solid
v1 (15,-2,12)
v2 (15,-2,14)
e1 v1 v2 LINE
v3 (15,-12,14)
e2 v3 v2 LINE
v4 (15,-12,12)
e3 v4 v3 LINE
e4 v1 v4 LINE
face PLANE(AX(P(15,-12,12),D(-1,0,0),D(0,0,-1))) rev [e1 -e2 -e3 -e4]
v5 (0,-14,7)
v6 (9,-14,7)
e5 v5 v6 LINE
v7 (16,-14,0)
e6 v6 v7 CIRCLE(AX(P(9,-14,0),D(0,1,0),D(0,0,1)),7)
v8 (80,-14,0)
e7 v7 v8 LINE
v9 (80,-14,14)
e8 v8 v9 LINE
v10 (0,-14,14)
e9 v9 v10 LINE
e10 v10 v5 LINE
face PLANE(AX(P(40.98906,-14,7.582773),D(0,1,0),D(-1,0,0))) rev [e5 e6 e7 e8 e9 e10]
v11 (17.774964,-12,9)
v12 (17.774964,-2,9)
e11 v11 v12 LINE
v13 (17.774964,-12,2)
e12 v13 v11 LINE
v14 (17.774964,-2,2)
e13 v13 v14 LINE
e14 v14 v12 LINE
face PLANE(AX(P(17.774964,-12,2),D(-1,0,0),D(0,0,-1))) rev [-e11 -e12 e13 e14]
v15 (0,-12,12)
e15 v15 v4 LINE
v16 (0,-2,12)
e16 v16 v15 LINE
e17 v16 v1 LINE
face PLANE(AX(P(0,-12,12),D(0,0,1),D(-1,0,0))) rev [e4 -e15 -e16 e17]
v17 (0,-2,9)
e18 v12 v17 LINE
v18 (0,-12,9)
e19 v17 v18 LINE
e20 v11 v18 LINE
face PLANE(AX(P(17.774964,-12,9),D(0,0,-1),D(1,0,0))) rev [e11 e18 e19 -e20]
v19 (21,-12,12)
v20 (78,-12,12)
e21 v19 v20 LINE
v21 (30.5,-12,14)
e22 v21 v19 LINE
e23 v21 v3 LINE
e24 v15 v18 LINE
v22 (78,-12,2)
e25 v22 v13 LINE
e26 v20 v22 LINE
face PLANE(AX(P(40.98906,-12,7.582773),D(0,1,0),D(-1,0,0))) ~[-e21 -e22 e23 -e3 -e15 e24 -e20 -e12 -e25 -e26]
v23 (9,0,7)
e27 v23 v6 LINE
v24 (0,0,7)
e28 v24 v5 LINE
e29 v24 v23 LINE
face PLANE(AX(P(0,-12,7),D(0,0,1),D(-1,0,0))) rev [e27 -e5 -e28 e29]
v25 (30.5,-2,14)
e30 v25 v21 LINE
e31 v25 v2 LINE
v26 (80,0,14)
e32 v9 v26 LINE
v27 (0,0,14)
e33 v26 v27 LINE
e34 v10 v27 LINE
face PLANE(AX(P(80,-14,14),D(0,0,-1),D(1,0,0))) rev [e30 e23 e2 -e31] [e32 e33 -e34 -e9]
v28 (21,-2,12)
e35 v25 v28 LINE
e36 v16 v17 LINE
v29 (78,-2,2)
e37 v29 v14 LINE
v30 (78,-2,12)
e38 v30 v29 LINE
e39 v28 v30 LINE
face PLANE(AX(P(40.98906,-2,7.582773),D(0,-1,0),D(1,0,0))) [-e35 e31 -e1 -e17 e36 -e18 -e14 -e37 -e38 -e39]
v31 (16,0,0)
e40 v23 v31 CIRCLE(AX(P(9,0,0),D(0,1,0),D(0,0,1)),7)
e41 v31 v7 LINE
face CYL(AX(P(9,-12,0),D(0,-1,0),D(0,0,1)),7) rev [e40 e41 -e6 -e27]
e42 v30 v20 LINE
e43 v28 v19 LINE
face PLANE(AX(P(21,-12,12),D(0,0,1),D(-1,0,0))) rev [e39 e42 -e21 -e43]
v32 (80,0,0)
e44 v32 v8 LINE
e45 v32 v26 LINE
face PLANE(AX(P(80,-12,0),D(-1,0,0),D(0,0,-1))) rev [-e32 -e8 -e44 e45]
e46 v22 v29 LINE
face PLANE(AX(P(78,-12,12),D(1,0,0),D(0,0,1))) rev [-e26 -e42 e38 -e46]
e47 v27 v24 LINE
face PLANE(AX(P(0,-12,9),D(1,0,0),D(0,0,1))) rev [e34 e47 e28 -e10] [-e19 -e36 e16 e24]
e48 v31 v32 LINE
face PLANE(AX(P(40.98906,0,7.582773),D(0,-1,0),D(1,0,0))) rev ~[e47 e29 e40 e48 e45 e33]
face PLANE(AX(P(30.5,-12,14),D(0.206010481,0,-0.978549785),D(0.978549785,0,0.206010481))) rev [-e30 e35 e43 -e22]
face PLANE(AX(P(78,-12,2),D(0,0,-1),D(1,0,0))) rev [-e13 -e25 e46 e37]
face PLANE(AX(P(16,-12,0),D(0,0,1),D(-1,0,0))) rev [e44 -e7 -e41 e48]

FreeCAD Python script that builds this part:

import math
import FreeCAD as App
import Part
import Sketcher
from FreeCAD import Vector
Q = App.Units.Quantity

doc = App.newDocument("Part")
params = doc.addObject("Spreadsheet::Sheet", "Params")
for row, (alias, value) in enumerate([
    ("sketch1_radius", "7 mm"),
    ("sketch1_width", "64 mm"),
    ("sketch1_width2", "80 mm"),
    ("sketch1_height", "14 mm"),
    ("pad1_length", "2 mm"),
    ("sketch2_radius", "7 mm"),
    ("sketch2_width", "9 mm"),
    ("sketch2_width2", "64 mm"),
    ("sketch2_width3", "57 mm"),
    ("sketch2_width4", "15 mm"),
    ("pad2_length", "5 mm"),
], start=1):
    params.set(f"A{row}", alias)
    params.set(f"B{row}", "=" + value)
    params.setAlias(f"B{row}", alias)

body = doc.addObject("PartDesign::Body", "Body")

# Sketch on XZ plane
sketch1 = doc.addObject("Sketcher::SketchObject", "Sketch")
body.addObject(sketch1)
sketch1.AttachmentSupport = (doc.XZ_Plane, [""])
sketch1.MapMode = "FlatFace"
sketch1.addGeometry([
    Part.ArcOfCircle(Part.Circle(Vector(9, 0, 0), Vector(0, 0, 1), 7), math.radians(0), math.radians(90)),  # 0
    Part.LineSegment(Vector(16, 0, 0), Vector(80, 0, 0)),  # 1
    Part.LineSegment(Vector(80, 0, 0), Vector(80, 14, 0)),  # 2
    Part.LineSegment(Vector(80, 14, 0), Vector(0, 14, 0)),  # 3
    Part.LineSegment(Vector(0, 14, 0), Vector(0, 7, 0)),  # 4
    Part.LineSegment(Vector(0, 7, 0), Vector(9, 7, 0)),  # 5
], False)
sketch1.addConstraint([
    Sketcher.Constraint("Coincident", 0, 1, 1, 1),
    Sketcher.Constraint("Coincident", 1, 2, 2, 1),
    Sketcher.Constraint("Coincident", 2, 2, 3, 1),
    Sketcher.Constraint("Coincident", 3, 2, 4, 1),
    Sketcher.Constraint("Coincident", 4, 2, 5, 1),
    Sketcher.Constraint("Tangent", 5, 2, 0, 2),
    Sketcher.Constraint("Horizontal", 1),
    Sketcher.Constraint("Vertical", 2),
    Sketcher.Constraint("Horizontal", 3),
    Sketcher.Constraint("Vertical", 4),
    Sketcher.Constraint("Horizontal", 5),
    Sketcher.Constraint("PointOnObject", 0, 3, -1),
    Sketcher.Constraint("PointOnObject", 0, 1, -1),
    Sketcher.Constraint("PointOnObject", 3, 2, -2),
    Sketcher.Constraint("Radius", 0, Q("7 mm")),
    Sketcher.Constraint("DistanceX", 1, 1, 1, 2, Q("64 mm")),
    Sketcher.Constraint("DistanceX", 3, 2, 3, 1, Q("80 mm")),
    Sketcher.Constraint("DistanceY", 2, 1, 2, 2, Q("14 mm")),
])
sketch1.setExpression("Constraints[14]", "Params.sketch1_radius")
sketch1.setExpression("Constraints[15]", "Params.sketch1_width")
sketch1.setExpression("Constraints[16]", "Params.sketch1_width2")
sketch1.setExpression("Constraints[17]", "Params.sketch1_height")
pad1 = doc.addObject("PartDesign::Pad", "Pad")
body.addObject(pad1)
pad1.Profile = sketch1
pad1.setExpression("Length", "Params.pad1_length")

# Sketch on XZ plane
sketch2 = doc.addObject("Sketcher::SketchObject", "Sketch001")
body.addObject(sketch2)
sketch2.AttachmentSupport = (doc.XZ_Plane, [""])
sketch2.MapMode = "FlatFace"
sketch2.AttachmentOffset = App.Placement(Vector(0, 0, 2), App.Rotation())
sketch2.addGeometry([
    Part.LineSegment(Vector(17.8, 9, 0), Vector(0, 9, 0)),  # 0
    Part.LineSegment(Vector(0, 9, 0), Vector(0, 7, 0)),  # 1
    Part.LineSegment(Vector(0, 7, 0), Vector(9, 7, 0)),  # 2
    Part.ArcOfCircle(Part.Circle(Vector(9, 0, 0), Vector(0, 0, 1), 7), math.radians(0), math.radians(90)),  # 3
    Part.LineSegment(Vector(16, 0, 0), Vector(80, 0, 0)),  # 4
    Part.LineSegment(Vector(80, 0, 0), Vector(80, 14, 0)),  # 5
    Part.LineSegment(Vector(80, 14, 0), Vector(30.5, 14, 0)),  # 6
    Part.LineSegment(Vector(30.5, 14, 0), Vector(21, 12, 0)),  # 7
    Part.LineSegment(Vector(21, 12, 0), Vector(78, 12, 0)),  # 8
    Part.LineSegment(Vector(78, 12, 0), Vector(78, 2, 0)),  # 9
    Part.LineSegment(Vector(78, 2, 0), Vector(17.8, 2, 0)),  # 10
    Part.LineSegment(Vector(17.8, 2, 0), Vector(17.8, 9, 0)),  # 11
    Part.LineSegment(Vector(0, 14, 0), Vector(0, 12, 0)),  # 12
    Part.LineSegment(Vector(0, 12, 0), Vector(15, 12, 0)),  # 13
    Part.LineSegment(Vector(15, 12, 0), Vector(15, 14, 0)),  # 14
    Part.LineSegment(Vector(15, 14, 0), Vector(0, 14, 0)),  # 15
], False)
sketch2.addConstraint([
    Sketcher.Constraint("Coincident", 0, 2, 1, 1),
    Sketcher.Constraint("Coincident", 1, 2, 2, 1),
    Sketcher.Constraint("Tangent", 2, 2, 3, 2),
    Sketcher.Constraint("Coincident", 3, 1, 4, 1),
    Sketcher.Constraint("Coincident", 4, 2, 5, 1),
    Sketcher.Constraint("Coincident", 5, 2, 6, 1),
    Sketcher.Constraint("Coincident", 6, 2, 7, 1),
    Sketcher.Constraint("Coincident", 7, 2, 8, 1),
    Sketcher.Constraint("Coincident", 8, 2, 9, 1),
    Sketcher.Constraint("Coincident", 9, 2, 10, 1),
    Sketcher.Constraint("Coincident", 10, 2, 11, 1),
    Sketcher.Constraint("Coincident", 11, 2, 0, 1),
    Sketcher.Constraint("Coincident", 12, 2, 13, 1),
    Sketcher.Constraint("Coincident", 13, 2, 14, 1),
    Sketcher.Constraint("Coincident", 14, 2, 15, 1),
    Sketcher.Constraint("Coincident", 15, 2, 12, 1),
    Sketcher.Constraint("Horizontal", 0),
    Sketcher.Constraint("Vertical", 1),
    Sketcher.Constraint("Horizontal", 2),
    Sketcher.Constraint("Horizontal", 4),
    Sketcher.Constraint("Vertical", 5),
    Sketcher.Constraint("Horizontal", 6),
    Sketcher.Constraint("Horizontal", 8),
    Sketcher.Constraint("Vertical", 9),
    Sketcher.Constraint("Horizontal", 10),
    Sketcher.Constraint("Vertical", 11),
    Sketcher.Constraint("Vertical", 12),
    Sketcher.Constraint("Horizontal", 13),
    Sketcher.Constraint("Vertical", 14),
    Sketcher.Constraint("Horizontal", 15),
    Sketcher.Constraint("PointOnObject", 3, 3, -1),
    Sketcher.Constraint("PointOnObject", 0, 2, -2),
    Sketcher.Constraint("PointOnObject", 3, 1, -1),
    Sketcher.Constraint("PointOnObject", 12, 2, -2),
    Sketcher.Constraint("Horizontal", 8, 2, 12, 2),
    Sketcher.Constraint("Horizontal", 6, 2, 14, 2),
    Sketcher.Constraint("Equal", 1, 12),
    Sketcher.Constraint("Radius", 3, Q("7 mm")),
    Sketcher.Constraint("DistanceX", 2, 1, 2, 2, Q("9 mm")),
    Sketcher.Constraint("DistanceX", 4, 1, 4, 2, Q("64 mm")),
    Sketcher.Constraint("DistanceX", 8, 1, 8, 2, Q("57 mm")),
    Sketcher.Constraint("DistanceX", 13, 1, 13, 2, Q("15 mm")),
    Sketcher.Constraint("DistanceY", 1, 2, 1, 1, Q("2 mm")),
    Sketcher.Constraint("DistanceY", 5, 1, 5, 2, Q("14 mm")),
    Sketcher.Constraint("DistanceY", 9, 2, 9, 1, Q("10 mm")),
    Sketcher.Constraint("DistanceX", 6, 2, 6, 1, Q("49.5 mm")),
    Sketcher.Constraint("DistanceX", -1, 1, 7, 2, Q("21 mm")),
    Sketcher.Constraint("DistanceX", 0, 2, 0, 1, Q("17.774964 mm")),
])
sketch2.setExpression("Constraints[37]", "Params.sketch2_radius")
sketch2.setExpression("Constraints[38]", "Params.sketch2_width")
sketch2.setExpression("Constraints[39]", "Params.sketch2_width2")
sketch2.setExpression("Constraints[40]", "Params.sketch2_width3")
sketch2.setExpression("Constraints[41]", "Params.sketch2_width4")
pad2 = doc.addObject("PartDesign::Pad", "Pad001")
body.addObject(pad2)
pad2.Profile = sketch2
pad2.setExpression("Length", "Params.pad2_length")
body2 = doc.addObject("PartDesign::Body", "Body001")
doc.recompute()

body2.BaseFeature = body
doc.recompute()

mirroring = doc.addObject("Part::Mirroring", "Mirroring")
mirroring.Source = body
mirroring.Base = Vector(45.180563, -7, 6.604272)
mirroring.Normal = Vector(0, -1, 0)
body3 = doc.addObject("PartDesign::Body", "Body002")
body3.BaseFeature = mirroring
boolean = doc.addObject("PartDesign::Boolean", "Boolean")
body2.addObject(boolean)
boolean.Type = "Fuse"
boolean.addObjects([body3])
doc.recompute()
mirroring.Visibility = False

doc.recompute()
